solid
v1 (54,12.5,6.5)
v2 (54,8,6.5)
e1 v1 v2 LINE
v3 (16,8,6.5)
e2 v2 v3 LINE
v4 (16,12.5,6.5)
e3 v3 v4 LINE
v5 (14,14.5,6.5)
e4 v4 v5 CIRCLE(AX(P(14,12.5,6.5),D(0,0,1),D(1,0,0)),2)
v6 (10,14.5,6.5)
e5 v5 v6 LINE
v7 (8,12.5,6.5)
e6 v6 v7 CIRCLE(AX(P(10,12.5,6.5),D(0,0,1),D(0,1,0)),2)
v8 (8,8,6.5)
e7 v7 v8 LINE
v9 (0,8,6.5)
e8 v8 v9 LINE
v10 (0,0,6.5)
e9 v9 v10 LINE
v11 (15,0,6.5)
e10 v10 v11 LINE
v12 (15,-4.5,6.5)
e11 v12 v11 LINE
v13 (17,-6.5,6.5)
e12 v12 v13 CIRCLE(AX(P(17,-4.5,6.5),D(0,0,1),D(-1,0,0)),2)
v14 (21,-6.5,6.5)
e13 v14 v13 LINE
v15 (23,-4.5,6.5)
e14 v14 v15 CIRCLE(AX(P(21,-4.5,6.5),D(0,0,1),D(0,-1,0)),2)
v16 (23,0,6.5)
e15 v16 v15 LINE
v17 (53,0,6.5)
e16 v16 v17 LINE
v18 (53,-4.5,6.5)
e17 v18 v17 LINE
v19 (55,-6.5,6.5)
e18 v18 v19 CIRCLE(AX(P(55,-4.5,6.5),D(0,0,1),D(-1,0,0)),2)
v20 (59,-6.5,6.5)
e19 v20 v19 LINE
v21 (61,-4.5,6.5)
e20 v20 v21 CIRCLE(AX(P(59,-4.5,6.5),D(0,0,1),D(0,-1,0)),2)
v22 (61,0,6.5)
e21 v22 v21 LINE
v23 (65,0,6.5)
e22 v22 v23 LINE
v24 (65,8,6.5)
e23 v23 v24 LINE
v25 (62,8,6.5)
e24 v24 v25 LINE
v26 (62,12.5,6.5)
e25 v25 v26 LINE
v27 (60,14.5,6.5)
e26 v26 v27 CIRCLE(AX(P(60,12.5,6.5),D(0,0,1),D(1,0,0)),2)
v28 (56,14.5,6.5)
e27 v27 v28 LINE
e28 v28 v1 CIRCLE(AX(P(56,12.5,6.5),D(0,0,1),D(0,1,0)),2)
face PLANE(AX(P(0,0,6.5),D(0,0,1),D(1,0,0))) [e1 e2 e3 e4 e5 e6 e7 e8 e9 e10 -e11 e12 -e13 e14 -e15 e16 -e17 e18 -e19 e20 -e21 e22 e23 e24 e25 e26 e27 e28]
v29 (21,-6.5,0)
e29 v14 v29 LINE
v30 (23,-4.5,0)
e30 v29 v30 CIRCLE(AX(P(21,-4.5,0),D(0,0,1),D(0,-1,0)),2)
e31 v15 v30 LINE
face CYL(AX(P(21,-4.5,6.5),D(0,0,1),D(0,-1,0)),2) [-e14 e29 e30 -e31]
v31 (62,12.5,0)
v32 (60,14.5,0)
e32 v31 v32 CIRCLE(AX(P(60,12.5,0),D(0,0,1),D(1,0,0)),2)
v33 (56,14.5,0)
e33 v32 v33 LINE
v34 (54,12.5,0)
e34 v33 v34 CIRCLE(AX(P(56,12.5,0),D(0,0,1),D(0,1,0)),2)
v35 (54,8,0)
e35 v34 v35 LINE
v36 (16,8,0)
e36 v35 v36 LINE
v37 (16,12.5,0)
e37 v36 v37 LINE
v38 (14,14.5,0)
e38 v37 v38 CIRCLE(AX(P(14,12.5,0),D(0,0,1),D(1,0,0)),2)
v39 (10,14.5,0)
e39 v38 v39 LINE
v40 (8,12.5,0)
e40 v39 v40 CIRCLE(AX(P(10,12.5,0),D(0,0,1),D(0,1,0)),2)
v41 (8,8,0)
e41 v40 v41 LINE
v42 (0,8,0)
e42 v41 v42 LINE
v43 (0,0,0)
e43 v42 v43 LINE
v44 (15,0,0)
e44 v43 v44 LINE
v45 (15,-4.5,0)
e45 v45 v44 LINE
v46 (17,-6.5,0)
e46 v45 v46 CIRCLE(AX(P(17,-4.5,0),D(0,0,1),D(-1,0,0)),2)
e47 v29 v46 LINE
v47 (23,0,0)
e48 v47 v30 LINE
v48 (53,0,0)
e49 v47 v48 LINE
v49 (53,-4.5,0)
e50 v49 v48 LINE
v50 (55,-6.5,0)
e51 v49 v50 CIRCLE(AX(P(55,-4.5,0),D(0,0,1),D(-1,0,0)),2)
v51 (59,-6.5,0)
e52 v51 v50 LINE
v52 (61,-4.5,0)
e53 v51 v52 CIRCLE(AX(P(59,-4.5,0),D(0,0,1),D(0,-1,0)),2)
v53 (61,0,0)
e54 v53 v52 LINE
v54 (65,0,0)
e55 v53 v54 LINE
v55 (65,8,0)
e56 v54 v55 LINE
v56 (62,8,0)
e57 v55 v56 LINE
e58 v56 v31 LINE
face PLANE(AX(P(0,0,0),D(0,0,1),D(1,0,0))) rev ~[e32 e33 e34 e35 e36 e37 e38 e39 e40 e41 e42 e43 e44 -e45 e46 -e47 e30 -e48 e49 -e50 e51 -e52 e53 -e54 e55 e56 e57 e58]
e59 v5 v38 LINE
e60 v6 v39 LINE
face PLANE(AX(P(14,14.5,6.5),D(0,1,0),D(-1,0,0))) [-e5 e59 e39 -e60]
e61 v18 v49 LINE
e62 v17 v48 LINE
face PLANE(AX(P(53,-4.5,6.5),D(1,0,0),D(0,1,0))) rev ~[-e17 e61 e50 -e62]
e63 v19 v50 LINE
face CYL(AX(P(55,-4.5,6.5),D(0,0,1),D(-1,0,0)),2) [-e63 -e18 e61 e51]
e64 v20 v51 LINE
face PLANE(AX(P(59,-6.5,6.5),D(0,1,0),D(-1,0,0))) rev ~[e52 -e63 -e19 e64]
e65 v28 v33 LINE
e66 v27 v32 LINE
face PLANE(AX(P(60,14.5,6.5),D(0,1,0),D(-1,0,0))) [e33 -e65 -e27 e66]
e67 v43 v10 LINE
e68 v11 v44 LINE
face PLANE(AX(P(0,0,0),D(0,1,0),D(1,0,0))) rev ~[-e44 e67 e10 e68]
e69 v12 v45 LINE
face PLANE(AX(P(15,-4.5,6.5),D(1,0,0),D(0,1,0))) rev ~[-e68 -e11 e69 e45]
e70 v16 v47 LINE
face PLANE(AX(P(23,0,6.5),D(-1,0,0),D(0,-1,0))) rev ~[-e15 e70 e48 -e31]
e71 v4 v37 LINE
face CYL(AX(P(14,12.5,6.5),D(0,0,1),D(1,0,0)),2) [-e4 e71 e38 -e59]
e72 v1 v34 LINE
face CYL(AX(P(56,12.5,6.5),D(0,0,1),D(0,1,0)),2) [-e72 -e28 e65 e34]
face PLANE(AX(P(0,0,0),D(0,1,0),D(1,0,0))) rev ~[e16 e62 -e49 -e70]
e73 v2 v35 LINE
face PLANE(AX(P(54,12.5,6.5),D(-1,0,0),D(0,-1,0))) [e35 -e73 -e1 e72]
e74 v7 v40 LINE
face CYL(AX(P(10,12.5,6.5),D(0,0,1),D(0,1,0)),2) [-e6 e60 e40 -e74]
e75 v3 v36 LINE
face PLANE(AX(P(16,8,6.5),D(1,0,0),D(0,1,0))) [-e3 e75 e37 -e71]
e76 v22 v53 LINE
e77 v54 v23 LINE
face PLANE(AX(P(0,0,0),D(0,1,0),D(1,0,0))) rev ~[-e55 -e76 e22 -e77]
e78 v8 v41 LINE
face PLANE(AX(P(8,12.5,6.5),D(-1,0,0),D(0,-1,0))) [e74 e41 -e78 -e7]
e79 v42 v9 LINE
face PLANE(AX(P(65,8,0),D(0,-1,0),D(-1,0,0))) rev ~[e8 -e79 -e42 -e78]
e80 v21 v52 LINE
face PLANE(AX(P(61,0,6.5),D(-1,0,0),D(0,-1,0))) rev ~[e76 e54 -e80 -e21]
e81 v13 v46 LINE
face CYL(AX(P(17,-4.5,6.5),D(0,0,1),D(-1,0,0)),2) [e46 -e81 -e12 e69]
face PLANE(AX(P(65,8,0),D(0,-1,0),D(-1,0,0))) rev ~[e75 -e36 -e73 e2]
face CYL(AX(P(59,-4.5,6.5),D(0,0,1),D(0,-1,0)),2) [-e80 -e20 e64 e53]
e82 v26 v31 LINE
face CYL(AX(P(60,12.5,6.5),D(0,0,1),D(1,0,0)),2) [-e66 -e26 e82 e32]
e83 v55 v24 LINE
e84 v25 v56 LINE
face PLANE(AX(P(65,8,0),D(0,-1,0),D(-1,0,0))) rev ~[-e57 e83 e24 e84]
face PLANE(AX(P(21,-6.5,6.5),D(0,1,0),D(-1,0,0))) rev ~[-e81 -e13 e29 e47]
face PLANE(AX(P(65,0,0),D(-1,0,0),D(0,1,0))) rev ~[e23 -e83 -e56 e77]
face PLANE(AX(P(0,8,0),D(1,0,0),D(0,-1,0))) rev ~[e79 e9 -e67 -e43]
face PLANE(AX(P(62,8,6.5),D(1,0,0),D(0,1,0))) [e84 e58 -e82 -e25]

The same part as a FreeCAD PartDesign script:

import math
import FreeCAD as App
import Part
import Sketcher

V = App.Vector

doc = App.newDocument("Part")
body = doc.addObject("PartDesign::Body", "Body")

sketch1 = body.newObject("Sketcher::SketchObject", "Sketch")
sketch1.AttachmentSupport = (doc.getObject("XY_Plane"), [""])
sketch1.MapMode = "FlatFace"
sketch1.addGeometry(Part.LineSegment(V(0, 8, 0), V(0, 0, 0)), False)
sketch1.addGeometry(Part.LineSegment(V(0, 0, 0), V(65, 0, 0)), False)
sketch1.addGeometry(Part.LineSegment(V(65, 0, 0), V(65, 8, 0)), False)
sketch1.addGeometry(Part.LineSegment(V(65, 8, 0), V(0, 8, 0)), False)
sketch1.addConstraint(Sketcher.Constraint("Coincident", 0, 2, 1, 1))
sketch1.addConstraint(Sketcher.Constraint("Coincident", 1, 2, 2, 1))
sketch1.addConstraint(Sketcher.Constraint("Coincident", 2, 2, 3, 1))
sketch1.addConstraint(Sketcher.Constraint("Coincident", 3, 2, 0, 1))
sketch1.addConstraint(Sketcher.Constraint("Vertical", 0))
sketch1.addConstraint(Sketcher.Constraint("Horizontal", 1))
sketch1.addConstraint(Sketcher.Constraint("Vertical", 2))
sketch1.addConstraint(Sketcher.Constraint("Horizontal", 3))
sketch1.addConstraint(Sketcher.Constraint("Coincident", 0, 2, -1, 1))
sketch1.addConstraint(Sketcher.Constraint("DistanceX", 1, 1, 1, 2, 65.0))
sketch1.addConstraint(Sketcher.Constraint("DistanceY", 0, 2, 0, 1, 8.0))
pad1 = body.newObject("PartDesign::Pad", "Pad")
pad1.Profile = sketch1
pad1.Length = 6.5

sketch2 = body.newObject("Sketcher::SketchObject", "Sketch001")
sketch2.AttachmentSupport = (doc.getObject("XY_Plane"), [""])
sketch2.MapMode = "FlatFace"
sketch2.AttachmentOffset = App.Placement(V(0, 0, 6.5), App.Rotation())
sketch2.addGeometry(Part.LineSegment(V(61, 0, 0), V(53, 0, 0)), False)
sketch2.addGeometry(Part.LineSegment(V(53, 0, 0), V(53, -4.5, 0)), False)
sketch2.addGeometry(Part.ArcOfCircle(Part.Circle(V(55, -4.5, 0), V(0, 0, 1), 2), math.radians(180), math.radians(270)), False)
sketch2.addGeometry(Part.LineSegment(V(55, -6.5, 0), V(59, -6.5, 0)), False)
sketch2.addGeometry(Part.ArcOfCircle(Part.Circle(V(59, -4.5, 0), V(0, 0, 1), 2), math.radians(-90), math.radians(0)), False)
sketch2.addGeometry(Part.LineSegment(V(61, -4.5, 0), V(61, 0, 0)), False)
sketch2.addGeometry(Part.LineSegment(V(23, 0, 0), V(15, 0, 0)), False)
sketch2.addGeometry(Part.LineSegment(V(15, 0, 0), V(15, -4.5, 0)), False)
sketch2.addGeometry(Part.ArcOfCircle(Part.Circle(V(17, -4.5, 0), V(0, 0, 1), 2), math.radians(180), math.radians(270)), False)
sketch2.addGeometry(Part.LineSegment(V(17, -6.5, 0), V(21, -6.5, 0)), False)
sketch2.addGeometry(Part.ArcOfCircle(Part.Circle(V(21, -4.5, 0), V(0, 0, 1), 2), math.radians(-90), math.radians(0)), False)
sketch2.addGeometry(Part.LineSegment(V(23, -4.5, 0), V(23, 0, 0)), False)
sketch2.addGeometry(Part.LineSegment(V(54, 12.5, 0), V(54, 8, 0)), False)
sketch2.addGeometry(Part.LineSegment(V(54, 8, 0), V(62, 8, 0)), False)
sketch2.addGeometry(Part.LineSegment(V(62, 8, 0), V(62, 12.5, 0)), False)
sketch2.addGeometry(Part.ArcOfCircle(Part.Circle(V(60, 12.5, 0), V(0, 0, 1), 2), math.radians(0), math.radians(90)), False)
sketch2.addGeometry(Part.LineSegment(V(60, 14.5, 0), V(56, 14.5, 0)), False)
sketch2.addGeometry(Part.ArcOfCircle(Part.Circle(V(56, 12.5, 0), V(0, 0, 1), 2), math.radians(90), math.radians(180)), False)
sketch2.addGeometry(Part.LineSegment(V(8, 12.5, 0), V(8, 8, 0)), False)
sketch2.addGeometry(Part.LineSegment(V(8, 8, 0), V(16, 8, 0)), False)
sketch2.addGeometry(Part.LineSegment(V(16, 8, 0), V(16, 12.5, 0)), False)
sketch2.addGeometry(Part.ArcOfCircle(Part.Circle(V(14, 12.5, 0), V(0, 0, 1), 2), math.radians(0), math.radians(90)), False)
sketch2.addGeometry(Part.LineSegment(V(14, 14.5, 0), V(10, 14.5, 0)), False)
sketch2.addGeometry(Part.ArcOfCircle(Part.Circle(V(10, 12.5, 0), V(0, 0, 1), 2), math.radians(90), math.radians(180)), False)
sketch2.addConstraint(Sketcher.Constraint("Coincident", 0, 2, 1, 1))
sketch2.addConstraint(Sketcher.Constraint("Tangent", 1, 2, 2, 1))
sketch2.addConstraint(Sketcher.Constraint("Tangent", 2, 2, 3, 1))
sketch2.addConstraint(Sketcher.Constraint("Tangent", 3, 2, 4, 1))
sketch2.addConstraint(Sketcher.Constraint("Tangent", 4, 2, 5, 1))
sketch2.addConstraint(Sketcher.Constraint("Coincident", 5, 2, 0, 1))
sketch2.addConstraint(Sketcher.Constraint("Coincident", 6, 2, 7, 1))
sketch2.addConstraint(Sketcher.Constraint("Tangent", 7, 2, 8, 1))
sketch2.addConstraint(Sketcher.Constraint("Tangent", 8, 2, 9, 1))
sketch2.addConstraint(Sketcher.Constraint("Tangent", 9, 2, 10, 1))
sketch2.addConstraint(Sketcher.Constraint("Tangent", 10, 2, 11, 1))
sketch2.addConstraint(Sketcher.Constraint("Coincident", 11, 2, 6, 1))
sketch2.addConstraint(Sketcher.Constraint("Coincident", 12, 2, 13, 1))
sketch2.addConstraint(Sketcher.Constraint("Coincident", 13, 2, 14, 1))
sketch2.addConstraint(Sketcher.Constraint("Tangent", 14, 2, 15, 1))
sketch2.addConstraint(Sketcher.Constraint("Tangent", 15, 2, 16, 1))
sketch2.addConstraint(Sketcher.Constraint("Tangent", 16, 2, 17, 1))
sketch2.addConstraint(Sketcher.Constraint("Tangent", 17, 2, 12, 1))
sketch2.addConstraint(Sketcher.Constraint("Coincident", 18, 2, 19, 1))
sketch2.addConstraint(Sketcher.Constraint("Coincident", 19, 2, 20, 1))
sketch2.addConstraint(Sketcher.Constraint("Tangent", 20, 2, 21, 1))
sketch2.addConstraint(Sketcher.Constraint("Tangent", 21, 2, 22, 1))
sketch2.addConstraint(Sketcher.Constraint("Tangent", 22, 2, 23, 1))
sketch2.addConstraint(Sketcher.Constraint("Tangent", 23, 2, 18, 1))
sketch2.addConstraint(Sketcher.Constraint("Horizontal", 0))
sketch2.addConstraint(Sketcher.Constraint("Vertical", 1))
sketch2.addConstraint(Sketcher.Constraint("Horizontal", 3))
sketch2.addConstraint(Sketcher.Constraint("Vertical", 5))
sketch2.addConstraint(Sketcher.Constraint("Horizontal", 6))
sketch2.addConstraint(Sketcher.Constraint("Vertical", 7))
sketch2.addConstraint(Sketcher.Constraint("Horizontal", 9))
sketch2.addConstraint(Sketcher.Constraint("Vertical", 11))
sketch2.addConstraint(Sketcher.Constraint("Vertical", 12))
sketch2.addConstraint(Sketcher.Constraint("Horizontal", 13))
sketch2.addConstraint(Sketcher.Constraint("Vertical", 14))
sketch2.addConstraint(Sketcher.Constraint("Horizontal", 16))
sketch2.addConstraint(Sketcher.Constraint("Vertical", 18))
sketch2.addConstraint(Sketcher.Constraint("Horizontal", 19))
sketch2.addConstraint(Sketcher.Constraint("Vertical", 20))
sketch2.addConstraint(Sketcher.Constraint("Horizontal", 22))
sketch2.addConstraint(Sketcher.Constraint("Equal", 2, 4))
sketch2.addConstraint(Sketcher.Constraint("Equal", 4, 8))
sketch2.addConstraint(Sketcher.Constraint("Equal", 8, 10))
sketch2.addConstraint(Sketcher.Constraint("Equal", 10, 15))
sketch2.addConstraint(Sketcher.Constraint("Equal", 15, 17))
sketch2.addConstraint(Sketcher.Constraint("Equal", 17, 21))
sketch2.addConstraint(Sketcher.Constraint("Equal", 21, 23))
sketch2.addConstraint(Sketcher.Constraint("PointOnObject", 0, 2, -1))
sketch2.addConstraint(Sketcher.Constraint("PointOnObject", 6, 2, -1))
sketch2.addConstraint(Sketcher.Constraint("Horizontal", 4, 3, 8, 3))
sketch2.addConstraint(Sketcher.Constraint("Horizontal", 17, 3, 21, 3))
sketch2.addConstraint(Sketcher.Constraint("Horizontal", 13, 2, 18, 2))
sketch2.addConstraint(Sketcher.Constraint("Equal", 0, 6))
sketch2.addConstraint(Sketcher.Constraint("Equal", 6, 13))
sketch2.addConstraint(Sketcher.Constraint("Equal", 13, 19))
sketch2.addConstraint(Sketcher.Constraint("Equal", 11, 12))
sketch2.addConstraint(Sketcher.Constraint("Radius", 2, 2.0))
sketch2.addConstraint(Sketcher.Constraint("DistanceX", 0, 2, 0, 1, 8.0))
sketch2.addConstraint(Sketcher.Constraint("DistanceX", -1, 1, 6, 2, 15.0))
sketch2.addConstraint(Sketcher.Constraint("DistanceY", -1, 1, 12, 2, 8.0))
sketch2.addConstraint(Sketcher.Constraint("DistanceX", -1, 1, 18, 2, 8.0))
sketch2.addConstraint(Sketcher.Constraint("DistanceX", 8, 3, 2, 3, 38.0))
sketch2.addConstraint(Sketcher.Constraint("DistanceY", 2, 2, -1, 1, 6.5))
sketch2.addConstraint(Sketcher.Constraint("DistanceX", -1, 1, 15, 3, 60.0))
pad2 = body.newObject("PartDesign::Pad", "Pad001")
pad2.Profile = sketch2
pad2.Length = 6.5
pad2.Reversed = True

doc.recompute()
